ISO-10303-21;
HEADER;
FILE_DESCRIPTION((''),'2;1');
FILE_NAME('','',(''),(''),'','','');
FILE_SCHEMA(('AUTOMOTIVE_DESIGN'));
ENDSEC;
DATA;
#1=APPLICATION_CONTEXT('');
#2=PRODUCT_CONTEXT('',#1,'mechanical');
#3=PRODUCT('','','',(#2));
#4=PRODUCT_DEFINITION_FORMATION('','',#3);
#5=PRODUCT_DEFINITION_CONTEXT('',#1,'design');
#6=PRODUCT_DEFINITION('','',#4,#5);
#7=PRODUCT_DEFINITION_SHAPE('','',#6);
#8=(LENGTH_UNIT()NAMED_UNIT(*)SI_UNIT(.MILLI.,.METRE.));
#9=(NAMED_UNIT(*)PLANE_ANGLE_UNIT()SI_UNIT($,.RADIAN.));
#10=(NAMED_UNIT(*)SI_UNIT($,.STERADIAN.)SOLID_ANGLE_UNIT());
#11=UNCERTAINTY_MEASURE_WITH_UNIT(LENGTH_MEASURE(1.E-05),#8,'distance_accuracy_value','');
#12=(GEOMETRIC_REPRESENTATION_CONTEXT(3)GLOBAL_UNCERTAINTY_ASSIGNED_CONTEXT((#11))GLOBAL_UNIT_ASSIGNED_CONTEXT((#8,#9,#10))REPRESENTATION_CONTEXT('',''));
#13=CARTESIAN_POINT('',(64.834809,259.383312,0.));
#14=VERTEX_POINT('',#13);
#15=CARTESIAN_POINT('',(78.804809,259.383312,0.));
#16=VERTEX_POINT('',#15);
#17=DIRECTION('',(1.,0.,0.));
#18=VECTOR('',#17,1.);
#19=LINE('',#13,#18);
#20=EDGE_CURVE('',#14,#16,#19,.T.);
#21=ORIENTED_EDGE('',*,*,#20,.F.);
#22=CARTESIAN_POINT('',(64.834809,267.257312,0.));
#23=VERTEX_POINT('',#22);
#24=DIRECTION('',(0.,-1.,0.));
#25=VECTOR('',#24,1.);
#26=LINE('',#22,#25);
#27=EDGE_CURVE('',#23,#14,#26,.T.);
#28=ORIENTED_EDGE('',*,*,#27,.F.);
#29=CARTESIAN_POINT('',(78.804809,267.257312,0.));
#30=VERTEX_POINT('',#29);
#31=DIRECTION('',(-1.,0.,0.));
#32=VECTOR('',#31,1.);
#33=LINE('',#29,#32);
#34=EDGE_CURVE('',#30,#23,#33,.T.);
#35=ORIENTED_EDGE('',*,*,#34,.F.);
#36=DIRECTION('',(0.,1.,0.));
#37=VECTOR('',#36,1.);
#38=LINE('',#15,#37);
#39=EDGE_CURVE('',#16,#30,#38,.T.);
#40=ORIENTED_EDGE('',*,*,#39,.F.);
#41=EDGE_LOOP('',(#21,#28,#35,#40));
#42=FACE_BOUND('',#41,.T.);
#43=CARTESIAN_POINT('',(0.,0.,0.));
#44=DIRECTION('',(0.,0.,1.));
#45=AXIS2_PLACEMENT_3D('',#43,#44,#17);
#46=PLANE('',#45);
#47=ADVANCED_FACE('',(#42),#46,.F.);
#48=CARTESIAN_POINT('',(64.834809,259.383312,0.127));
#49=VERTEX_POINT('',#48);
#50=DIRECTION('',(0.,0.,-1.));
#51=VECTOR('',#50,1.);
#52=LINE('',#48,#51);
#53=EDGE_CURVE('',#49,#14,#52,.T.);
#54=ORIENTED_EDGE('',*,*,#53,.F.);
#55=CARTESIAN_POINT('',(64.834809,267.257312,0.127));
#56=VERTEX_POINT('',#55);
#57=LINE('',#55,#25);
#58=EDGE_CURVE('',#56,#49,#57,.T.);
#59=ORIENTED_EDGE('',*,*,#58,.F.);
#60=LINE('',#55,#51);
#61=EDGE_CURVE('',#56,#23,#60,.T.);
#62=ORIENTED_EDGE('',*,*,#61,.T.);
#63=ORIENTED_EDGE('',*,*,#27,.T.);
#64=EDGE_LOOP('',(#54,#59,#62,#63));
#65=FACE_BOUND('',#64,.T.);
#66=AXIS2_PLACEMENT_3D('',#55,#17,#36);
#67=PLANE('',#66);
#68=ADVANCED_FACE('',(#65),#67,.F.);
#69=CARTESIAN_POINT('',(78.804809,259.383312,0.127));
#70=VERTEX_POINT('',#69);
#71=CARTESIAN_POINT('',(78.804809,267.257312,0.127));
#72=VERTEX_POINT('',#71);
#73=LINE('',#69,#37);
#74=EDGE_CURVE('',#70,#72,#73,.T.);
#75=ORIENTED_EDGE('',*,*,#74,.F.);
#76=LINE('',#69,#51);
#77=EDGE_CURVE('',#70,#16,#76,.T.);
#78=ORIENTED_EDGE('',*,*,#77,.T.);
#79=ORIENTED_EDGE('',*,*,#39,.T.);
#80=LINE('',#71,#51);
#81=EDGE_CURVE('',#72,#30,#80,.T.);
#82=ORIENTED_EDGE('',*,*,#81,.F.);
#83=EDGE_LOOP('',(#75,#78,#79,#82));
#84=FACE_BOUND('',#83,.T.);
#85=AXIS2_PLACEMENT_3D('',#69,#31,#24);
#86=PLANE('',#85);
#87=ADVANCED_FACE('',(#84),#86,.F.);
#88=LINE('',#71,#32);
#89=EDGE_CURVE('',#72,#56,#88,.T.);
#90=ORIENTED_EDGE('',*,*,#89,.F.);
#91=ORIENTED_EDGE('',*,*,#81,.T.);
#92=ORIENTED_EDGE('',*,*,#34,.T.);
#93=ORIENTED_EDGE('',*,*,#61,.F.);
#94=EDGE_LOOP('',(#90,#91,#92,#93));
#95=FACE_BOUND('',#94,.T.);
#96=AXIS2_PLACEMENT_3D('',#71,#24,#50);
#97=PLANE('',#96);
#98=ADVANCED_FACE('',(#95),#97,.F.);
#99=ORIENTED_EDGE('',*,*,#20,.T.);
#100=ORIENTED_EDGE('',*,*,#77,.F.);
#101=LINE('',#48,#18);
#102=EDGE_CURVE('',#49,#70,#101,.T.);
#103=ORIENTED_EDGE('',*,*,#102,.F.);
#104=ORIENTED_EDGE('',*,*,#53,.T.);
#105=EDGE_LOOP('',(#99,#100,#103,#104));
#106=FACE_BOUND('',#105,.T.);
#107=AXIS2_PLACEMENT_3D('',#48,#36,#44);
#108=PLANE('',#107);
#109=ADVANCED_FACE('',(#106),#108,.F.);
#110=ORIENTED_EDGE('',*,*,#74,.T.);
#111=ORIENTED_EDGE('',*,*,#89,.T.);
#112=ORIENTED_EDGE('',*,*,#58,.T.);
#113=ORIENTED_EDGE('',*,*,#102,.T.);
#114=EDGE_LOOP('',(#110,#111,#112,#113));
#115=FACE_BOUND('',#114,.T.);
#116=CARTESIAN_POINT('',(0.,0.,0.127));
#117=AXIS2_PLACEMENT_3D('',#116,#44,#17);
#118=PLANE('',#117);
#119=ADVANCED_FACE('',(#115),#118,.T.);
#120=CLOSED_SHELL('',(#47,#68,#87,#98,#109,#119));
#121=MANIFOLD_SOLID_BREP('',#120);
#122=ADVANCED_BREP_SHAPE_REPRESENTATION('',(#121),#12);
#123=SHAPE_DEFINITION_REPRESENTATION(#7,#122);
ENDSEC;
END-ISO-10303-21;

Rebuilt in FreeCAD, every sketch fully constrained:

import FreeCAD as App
import Part
import Sketcher

V = App.Vector
Q = App.Units.Quantity


def add_polygon(sketch, points):
    """Adds a closed chain of lines whose ends are joined by coincident constraints."""
    first, n = sketch.GeometryCount, len(points)
    for a, b in zip(points, points[1:] + points[:1]):
        sketch.addGeometry(Part.LineSegment(App.Vector(*a, 0), App.Vector(*b, 0)), False)
    for i in range(n):
        sketch.addConstraint(Sketcher.Constraint("Coincident", first + i, 2, first + (i + 1) % n, 1))

doc = App.newDocument("Part")
body = doc.addObject("PartDesign::Body", "Body")

# Sketch on XY plane
sketch1 = body.newObject("Sketcher::SketchObject", "Sketch")
sketch1.AttachmentSupport = (doc.getObject("XY_Plane"), [""])
sketch1.MapMode = "FlatFace"
add_polygon(sketch1, [(65, 267), (65, 259), (79, 259), (79, 267)])  # lines 0-3
sketch1.addConstraint(Sketcher.Constraint("Vertical", 0))
sketch1.addConstraint(Sketcher.Constraint("Horizontal", 1))
sketch1.addConstraint(Sketcher.Constraint("Vertical", 2))
sketch1.addConstraint(Sketcher.Constraint("Horizontal", 3))
sketch1.addConstraint(Sketcher.Constraint("DistanceX", 1, 1, 1, 2, Q("0.55 in")))
sketch1.addConstraint(Sketcher.Constraint("DistanceY", 0, 2, 0, 1, Q("0.31 in")))
sketch1.addConstraint(Sketcher.Constraint("DistanceX", -1, 1, 0, 2, 64.834809))
sketch1.addConstraint(Sketcher.Constraint("DistanceY", -1, 1, 0, 2, 259.383312))
pad1 = body.newObject("PartDesign::Pad", "Pad")
pad1.Profile = sketch1
pad1.Length = Q("0.005 in")

doc.recompute()
